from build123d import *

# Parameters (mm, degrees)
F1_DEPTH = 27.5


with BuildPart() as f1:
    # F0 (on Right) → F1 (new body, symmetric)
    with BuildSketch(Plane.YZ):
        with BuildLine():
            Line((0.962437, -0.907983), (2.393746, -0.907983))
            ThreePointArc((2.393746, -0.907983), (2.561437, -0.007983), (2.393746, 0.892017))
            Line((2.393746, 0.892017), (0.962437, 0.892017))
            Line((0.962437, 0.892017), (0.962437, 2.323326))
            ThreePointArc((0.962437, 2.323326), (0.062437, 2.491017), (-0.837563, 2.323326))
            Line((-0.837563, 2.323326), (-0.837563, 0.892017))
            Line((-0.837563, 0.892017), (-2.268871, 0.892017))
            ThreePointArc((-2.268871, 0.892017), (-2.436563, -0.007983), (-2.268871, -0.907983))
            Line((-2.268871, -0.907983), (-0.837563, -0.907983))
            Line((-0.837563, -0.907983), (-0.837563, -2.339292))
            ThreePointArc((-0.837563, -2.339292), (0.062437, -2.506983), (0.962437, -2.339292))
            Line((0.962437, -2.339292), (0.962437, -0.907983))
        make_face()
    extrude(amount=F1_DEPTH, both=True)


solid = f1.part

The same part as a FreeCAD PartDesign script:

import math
import FreeCAD as App
import Part
import Sketcher

doc = App.newDocument("Part")
body = doc.addObject("PartDesign::Body", "Body")

# Sketch on YZ plane
sketch1 = body.newObject("Sketcher::SketchObject", "Sketch")
sketch1.AttachmentSupport = (doc.getObject("YZ_Plane"), [""])
sketch1.MapMode = "FlatFace"
sketch1.addGeometry([
    Part.LineSegment(App.Vector(1, -0.9, 0), App.Vector(2.4, -0.9, 0)),  # 0
    Part.ArcOfCircle(Part.Circle(App.Vector(0.1, 0, 0), App.Vector(0, 0, 1), 2.5), math.radians(-21), math.radians(21)),  # 1
    Part.LineSegment(App.Vector(2.4, 0.9, 0), App.Vector(1, 0.9, 0)),  # 2
    Part.LineSegment(App.Vector(1, 0.9, 0), App.Vector(1, 2.3, 0)),  # 3
    Part.ArcOfCircle(Part.Circle(App.Vector(0.1, 0, 0), App.Vector(0, 0, 1), 2.5), math.radians(69), math.radians(111)),  # 4
    Part.LineSegment(App.Vector(-0.8, 2.3, 0), App.Vector(-0.8, 0.9, 0)),  # 5
    Part.LineSegment(App.Vector(-0.8, 0.9, 0), App.Vector(-2.3, 0.9, 0)),  # 6
    Part.ArcOfCircle(Part.Circle(App.Vector(0.1, 0, 0), App.Vector(0, 0, 1), 2.5), math.radians(159), math.radians(201)),  # 7
    Part.LineSegment(App.Vector(-2.3, -0.9, 0), App.Vector(-0.8, -0.9, 0)),  # 8
    Part.LineSegment(App.Vector(-0.8, -0.9, 0), App.Vector(-0.8, -2.3, 0)),  # 9
    Part.ArcOfCircle(Part.Circle(App.Vector(0.1, 0, 0), App.Vector(0, 0, 1), 2.5), math.radians(-111), math.radians(-69)),  # 10
    Part.LineSegment(App.Vector(1, -2.3, 0), App.Vector(1, -0.9, 0)),  # 11
], False)
sketch1.addConstraint([
    Sketcher.Constraint("Coincident", 0, 2, 1, 1),
    Sketcher.Constraint("Coincident", 1, 2, 2, 1),
    Sketcher.Constraint("Coincident", 2, 2, 3, 1),
    Sketcher.Constraint("Coincident", 3, 2, 4, 1),
    Sketcher.Constraint("Coincident", 4, 2, 5, 1),
    Sketcher.Constraint("Coincident", 5, 2, 6, 1),
    Sketcher.Constraint("Coincident", 6, 2, 7, 1),
    Sketcher.Constraint("Coincident", 7, 2, 8, 1),
    Sketcher.Constraint("Coincident", 8, 2, 9, 1),
    Sketcher.Constraint("Coincident", 9, 2, 10, 1),
    Sketcher.Constraint("Coincident", 10, 2, 11, 1),
    Sketcher.Constraint("Coincident", 11, 2, 0, 1),
    Sketcher.Constraint("Horizontal", 0),
    Sketcher.Constraint("Horizontal", 2),
    Sketcher.Constraint("Vertical", 3),
    Sketcher.Constraint("Vertical", 5),
    Sketcher.Constraint("Horizontal", 6),
    Sketcher.Constraint("Horizontal", 8),
    Sketcher.Constraint("Vertical", 9),
    Sketcher.Constraint("Vertical", 11),
    Sketcher.Constraint("Coincident", 4, 3, 1, 3),
    Sketcher.Constraint("Coincident", 10, 3, 1, 3),
    Sketcher.Constraint("Equal", 1, 4),
    Sketcher.Constraint("Equal", 4, 10),
    Sketcher.Constraint("Horizontal", 4, 3, 7, 3),
    Sketcher.Constraint("Horizontal", 3, 2, 4, 2),
    Sketcher.Constraint("Horizontal", 2, 2, 5, 2),
    Sketcher.Constraint("Horizontal", 0, 2, 7, 2),
    Sketcher.Constraint("Horizontal", 9, 2, 10, 2),
    Sketcher.Constraint("Vertical", 0, 2, 1, 2),
    Sketcher.Constraint("Vertical", 5, 2, 8, 2),
    Sketcher.Constraint("Equal", 2, 6),
    Sketcher.Constraint("Equal", 8, 3),
    Sketcher.Constraint("Radius", 1, 2.499002),
    Sketcher.Constraint("DistanceY", 0, 2, 4, 3, 0.899998),
    Sketcher.Constraint("Radius", 7, 2.498988),
    Sketcher.Constraint("DistanceY", 10, 3, -1, 1, 0.007981),
    Sketcher.Constraint("DistanceX", 6, 2, -1, 1, 2.268871),
])
pad1 = body.newObject("PartDesign::Pad", "Pad")
pad1.Profile = sketch1
pad1.Length = 55
pad1.Midplane = True

doc.recompute()
